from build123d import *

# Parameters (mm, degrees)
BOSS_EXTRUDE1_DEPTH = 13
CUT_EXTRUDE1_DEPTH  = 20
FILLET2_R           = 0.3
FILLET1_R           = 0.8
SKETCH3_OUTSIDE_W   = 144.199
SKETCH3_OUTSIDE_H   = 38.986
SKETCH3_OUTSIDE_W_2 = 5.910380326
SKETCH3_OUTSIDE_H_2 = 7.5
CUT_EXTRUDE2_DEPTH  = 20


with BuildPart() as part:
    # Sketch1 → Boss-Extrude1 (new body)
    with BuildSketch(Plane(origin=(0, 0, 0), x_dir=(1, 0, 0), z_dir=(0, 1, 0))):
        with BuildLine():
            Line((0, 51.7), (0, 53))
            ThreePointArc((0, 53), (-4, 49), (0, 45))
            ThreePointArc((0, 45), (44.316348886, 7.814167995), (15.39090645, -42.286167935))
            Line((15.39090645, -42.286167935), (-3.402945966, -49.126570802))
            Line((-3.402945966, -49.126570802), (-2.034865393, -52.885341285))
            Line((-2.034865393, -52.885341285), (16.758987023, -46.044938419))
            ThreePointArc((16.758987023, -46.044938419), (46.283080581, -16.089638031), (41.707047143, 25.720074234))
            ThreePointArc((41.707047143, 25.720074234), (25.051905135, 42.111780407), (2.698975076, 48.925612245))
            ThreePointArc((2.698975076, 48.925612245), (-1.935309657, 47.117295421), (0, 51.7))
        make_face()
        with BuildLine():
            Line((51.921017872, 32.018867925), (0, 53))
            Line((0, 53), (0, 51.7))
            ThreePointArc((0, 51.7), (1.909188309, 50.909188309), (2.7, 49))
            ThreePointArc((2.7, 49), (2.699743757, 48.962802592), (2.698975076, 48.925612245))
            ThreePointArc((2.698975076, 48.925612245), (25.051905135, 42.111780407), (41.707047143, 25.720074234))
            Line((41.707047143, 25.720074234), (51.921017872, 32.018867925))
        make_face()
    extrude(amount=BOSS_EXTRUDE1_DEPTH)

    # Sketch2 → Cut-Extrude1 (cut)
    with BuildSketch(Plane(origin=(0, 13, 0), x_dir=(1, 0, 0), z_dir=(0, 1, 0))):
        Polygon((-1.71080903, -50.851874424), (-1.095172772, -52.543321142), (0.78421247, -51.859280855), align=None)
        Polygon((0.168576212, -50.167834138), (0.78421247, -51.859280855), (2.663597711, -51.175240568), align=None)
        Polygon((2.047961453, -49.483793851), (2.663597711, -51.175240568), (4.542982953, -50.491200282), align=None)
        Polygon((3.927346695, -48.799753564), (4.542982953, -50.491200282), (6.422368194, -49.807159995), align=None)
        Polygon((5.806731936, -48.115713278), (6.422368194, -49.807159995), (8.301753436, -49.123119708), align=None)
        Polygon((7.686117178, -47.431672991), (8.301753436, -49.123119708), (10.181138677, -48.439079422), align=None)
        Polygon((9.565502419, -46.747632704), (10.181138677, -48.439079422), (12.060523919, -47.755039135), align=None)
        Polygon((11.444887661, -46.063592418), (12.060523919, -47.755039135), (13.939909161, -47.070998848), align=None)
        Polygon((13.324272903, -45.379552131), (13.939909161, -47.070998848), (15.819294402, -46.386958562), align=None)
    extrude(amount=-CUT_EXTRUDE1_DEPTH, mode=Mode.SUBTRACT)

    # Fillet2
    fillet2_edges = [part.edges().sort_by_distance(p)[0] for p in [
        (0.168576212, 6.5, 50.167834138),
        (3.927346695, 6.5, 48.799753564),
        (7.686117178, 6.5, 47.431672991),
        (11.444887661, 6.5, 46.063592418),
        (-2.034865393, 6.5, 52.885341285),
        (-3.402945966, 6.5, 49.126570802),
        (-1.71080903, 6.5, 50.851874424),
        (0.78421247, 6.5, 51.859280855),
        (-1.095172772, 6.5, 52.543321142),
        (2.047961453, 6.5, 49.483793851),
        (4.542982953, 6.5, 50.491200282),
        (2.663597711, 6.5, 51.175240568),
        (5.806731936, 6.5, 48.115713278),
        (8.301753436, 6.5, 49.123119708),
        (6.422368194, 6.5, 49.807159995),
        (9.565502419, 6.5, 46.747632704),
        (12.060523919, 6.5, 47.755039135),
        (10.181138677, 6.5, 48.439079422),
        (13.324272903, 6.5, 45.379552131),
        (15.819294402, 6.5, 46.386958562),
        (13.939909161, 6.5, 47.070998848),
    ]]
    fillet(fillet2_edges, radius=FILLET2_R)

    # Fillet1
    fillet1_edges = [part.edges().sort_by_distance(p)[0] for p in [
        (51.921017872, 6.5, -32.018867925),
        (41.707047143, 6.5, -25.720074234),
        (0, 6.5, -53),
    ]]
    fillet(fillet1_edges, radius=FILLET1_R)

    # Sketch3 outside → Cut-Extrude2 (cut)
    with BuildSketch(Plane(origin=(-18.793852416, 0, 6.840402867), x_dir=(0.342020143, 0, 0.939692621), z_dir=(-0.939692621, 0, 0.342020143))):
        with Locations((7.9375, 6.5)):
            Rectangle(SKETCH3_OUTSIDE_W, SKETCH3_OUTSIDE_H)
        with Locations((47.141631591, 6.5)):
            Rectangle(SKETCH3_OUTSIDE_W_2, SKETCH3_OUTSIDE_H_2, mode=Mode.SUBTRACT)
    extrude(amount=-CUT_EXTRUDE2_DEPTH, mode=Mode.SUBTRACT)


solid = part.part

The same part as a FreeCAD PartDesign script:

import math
import FreeCAD as App
import Part
import Sketcher

V = App.Vector
Q = App.Units.Quantity


def edges_at(feature, points):
    """Names of the edges that pass closest to the given points."""
    edges = feature.Shape.Edges
    near = lambda p: min(range(len(edges)), key=lambda i: edges[i].distToShape(Part.Vertex(*p))[0])
    return sorted({f"Edge{near(p) + 1}" for p in points})


def add_polygon(sketch, points):
    """Adds a closed chain of lines whose ends are joined by coincident constraints."""
    first, n = sketch.GeometryCount, len(points)
    for a, b in zip(points, points[1:] + points[:1]):
        sketch.addGeometry(Part.LineSegment(App.Vector(*a, 0), App.Vector(*b, 0)), False)
    for i in range(n):
        sketch.addConstraint(Sketcher.Constraint("Coincident", first + i, 2, first + (i + 1) % n, 1))

doc = App.newDocument("Part")
body = doc.addObject("PartDesign::Body", "Body")

# Sketch on XZ plane
sketch1 = body.newObject("Sketcher::SketchObject", "Sketch")
sketch1.AttachmentSupport = (doc.getObject("XZ_Plane"), [""])
sketch1.MapMode = "FlatFace"
sketch1.addGeometry([
    Part.ArcOfCircle(Part.Circle(V(0, -49, 0), V(0, 0, 1), 4), math.radians(90), math.radians(270)),  # 0
    Part.ArcOfCircle(Part.Circle(V(0, 0, 0), V(0, 0, 1), 45), math.radians(-90), math.radians(70)),  # 1
    Part.LineSegment(V(15.39, 42.29, 0), V(-3.4, 49.13, 0)),  # 2
    Part.LineSegment(V(-3.4, 49.13, 0), V(-2.03, 52.89, 0)),  # 3
    Part.LineSegment(V(-2.03, 52.89, 0), V(16.76, 46.04, 0)),  # 4
    Part.ArcOfCircle(Part.Circle(V(0, 0, 0), V(0, 0, 1), 49), math.radians(-32), math.radians(70)),  # 5
    Part.LineSegment(V(41.71, -25.72, 0), V(51.92, -32.02, 0)),  # 6
    Part.LineSegment(V(51.92, -32.02, 0), V(0, -53, 0)),  # 7
    Part.ArcOfCircle(Part.Circle(V(0, -49, 0), V(0, 0, 1), 2.7), math.radians(2), math.radians(270)),  # 8
    Part.ArcOfCircle(Part.Circle(V(0, -49, 0), V(0, 0, 1), 2.7), math.radians(-90), math.radians(0)),  # 9
    Part.ArcOfCircle(Part.Circle(V(0, -49, 0), V(0, 0, 1), 2.7), math.radians(0), math.radians(1.58)),  # 10
], False)
sketch1.addConstraint([
    Sketcher.Constraint("Tangent", 0, 1, 1, 1),
    Sketcher.Constraint("Tangent", 1, 2, 2, 1),
    Sketcher.Constraint("Coincident", 2, 2, 3, 1),
    Sketcher.Constraint("Coincident", 3, 2, 4, 1),
    Sketcher.Constraint("Tangent", 4, 2, 5, 2),
    Sketcher.Constraint("Coincident", 5, 1, 6, 1),
    Sketcher.Constraint("Coincident", 6, 2, 7, 1),
    Sketcher.Constraint("Coincident", 7, 2, 0, 2),
    Sketcher.Constraint("Tangent", 8, 2, 9, 1),
    Sketcher.Constraint("Tangent", 9, 2, 10, 1),
    Sketcher.Constraint("Tangent", 10, 2, 8, 1),
    Sketcher.Constraint("Coincident", 1, 3, -1, 1),
    Sketcher.Constraint("Coincident", 5, 3, -1, 1),
    Sketcher.Constraint("Coincident", 8, 3, 0, 3),
    Sketcher.Constraint("PointOnObject", 0, 3, -2),
    Sketcher.Constraint("PointOnObject", 7, 2, -2),
    Sketcher.Constraint("PointOnObject", 8, 2, -2),
    Sketcher.Constraint("Perpendicular", 2, 3),
    Sketcher.Constraint("Perpendicular", 3, 4),
    Sketcher.Constraint("Horizontal", 10, 3, 9, 2),
    Sketcher.Constraint("Radius", 0, Q("4 mm")),
    Sketcher.Constraint("Radius", 1, Q("45 mm")),
    Sketcher.Constraint("Radius", 5, Q("49 mm")),
    Sketcher.Constraint("Radius", 8, Q("2.7 mm")),
    Sketcher.Constraint("Angle", 2, Q("160 deg")),
    Sketcher.Constraint("Distance", 2, Q("20 mm")),
    Sketcher.Constraint("Distance", 6, Q("12 mm")),
    Sketcher.Constraint("Distance", 7, Q("56 mm")),
    Sketcher.Constraint("DistanceX", 5, 1, 6, 2, Q("10.213971 mm")),
    Sketcher.Constraint("DistanceX", -1, 1, 10, 2, Q("2.698975 mm")),
])
pad1 = body.newObject("PartDesign::Pad", "Pad")
pad1.Profile = sketch1
pad1.Length = 13
pad1.Reversed = True

# Sketch on XZ plane
sketch2 = body.newObject("Sketcher::SketchObject", "Sketch001")
sketch2.AttachmentSupport = (doc.getObject("XZ_Plane"), [""])
sketch2.MapMode = "FlatFace"
sketch2.AttachmentOffset = App.Placement(V(0, 0, -13), App.Rotation())
add_polygon(sketch2, [(-1.7, 50.9), (-1.1, 52.5), (0.8, 51.9)])  # lines 0-2
add_polygon(sketch2, [(0.2, 50.2), (0.8, 51.9), (2.7, 51.2)])  # lines 3-5
add_polygon(sketch2, [(2, 49.5), (2.7, 51.2), (4.5, 50.5)])  # lines 6-8
add_polygon(sketch2, [(3.9, 48.8), (4.5, 50.5), (6.4, 49.8)])  # lines 9-11
add_polygon(sketch2, [(5.8, 48.1), (6.4, 49.8), (8.3, 49.1)])  # lines 12-14
add_polygon(sketch2, [(7.7, 47.4), (8.3, 49.1), (10.2, 48.4)])  # lines 15-17
add_polygon(sketch2, [(9.6, 46.7), (10.2, 48.4), (12.1, 47.8)])  # lines 18-20
add_polygon(sketch2, [(11.4, 46.1), (12.1, 47.8), (13.9, 47.1)])  # lines 21-23
add_polygon(sketch2, [(13.3, 45.4), (13.9, 47.1), (15.8, 46.4)])  # lines 24-26
sketch2.addConstraint([
    Sketcher.Constraint("Coincident", 3, 2, 1, 2),
    Sketcher.Constraint("Coincident", 6, 2, 4, 2),
    Sketcher.Constraint("Coincident", 9, 2, 7, 2),
    Sketcher.Constraint("Coincident", 12, 2, 10, 2),
    Sketcher.Constraint("Coincident", 15, 2, 13, 2),
    Sketcher.Constraint("Coincident", 18, 2, 16, 2),
    Sketcher.Constraint("Coincident", 21, 2, 19, 2),
    Sketcher.Constraint("Coincident", 24, 2, 22, 2),
    Sketcher.Constraint("Perpendicular", 0, 1),
    Sketcher.Constraint("Perpendicular", 1, 3),
    Sketcher.Constraint("Perpendicular", 3, 4),
    Sketcher.Constraint("Parallel", 2, 5),
    Sketcher.Constraint("Perpendicular", 4, 6),
    Sketcher.Constraint("Perpendicular", 6, 7),
    Sketcher.Constraint("Parallel", 5, 8),
    Sketcher.Constraint("Perpendicular", 7, 9),
    Sketcher.Constraint("Perpendicular", 9, 10),
    Sketcher.Constraint("Parallel", 8, 11),
    Sketcher.Constraint("Perpendicular", 10, 12),
    Sketcher.Constraint("Perpendicular", 12, 13),
    Sketcher.Constraint("Parallel", 11, 14),
    Sketcher.Constraint("Perpendicular", 13, 15),
    Sketcher.Constraint("Perpendicular", 15, 16),
    Sketcher.Constraint("Parallel", 14, 17),
    Sketcher.Constraint("Perpendicular", 16, 18),
    Sketcher.Constraint("Perpendicular", 18, 19),
    Sketcher.Constraint("Parallel", 17, 20),
    Sketcher.Constraint("Perpendicular", 19, 21),
    Sketcher.Constraint("Perpendicular", 21, 22),
    Sketcher.Constraint("Parallel", 20, 23),
    Sketcher.Constraint("Perpendicular", 22, 24),
    Sketcher.Constraint("Perpendicular", 24, 25),
    Sketcher.Constraint("Parallel", 23, 26),
    Sketcher.Constraint("Equal", 0, 3),
    Sketcher.Constraint("Equal", 3, 6),
    Sketcher.Constraint("Equal", 6, 9),
    Sketcher.Constraint("Equal", 9, 12),
    Sketcher.Constraint("Equal", 12, 15),
    Sketcher.Constraint("Equal", 15, 18),
    Sketcher.Constraint("Equal", 18, 21),
    Sketcher.Constraint("Equal", 21, 24),
    Sketcher.Constraint("Angle", 0, Q("70 deg")),
    Sketcher.Constraint("Distance", 1, Q("2 mm")),
    Sketcher.Constraint("Distance", 0, Q("1.8 mm")),
    Sketcher.Constraint("DistanceY", -1, 1, 22, 2, Q("47.070999 mm")),
    Sketcher.Constraint("DistanceX", 2, 2, -1, 1, Q("1.710809 mm")),
])
pocket1 = body.newObject("PartDesign::Pocket", "Pocket")
pocket1.Profile = sketch2
pocket1.Length = 20
pocket1.Reversed = True
doc.recompute()

fillet = body.newObject("PartDesign::Fillet", "Fillet")
fillet.Base = (pocket1, edges_at(pocket1, [
    (0.169, 6.5, 50.168),
    (3.927, 6.5, 48.8),
    (7.686, 6.5, 47.432),
    (11.445, 6.5, 46.064),
    (-2.035, 6.5, 52.885),
    (-3.403, 6.5, 49.127),
    (-1.711, 6.5, 50.852),
    (0.784, 6.5, 51.859),
    (-1.095, 6.5, 52.543),
    (2.048, 6.5, 49.484),
    (4.543, 6.5, 50.491),
    (2.664, 6.5, 51.175),
    (5.807, 6.5, 48.116),
    (8.302, 6.5, 49.123),
    (6.422, 6.5, 49.807),
    (9.566, 6.5, 46.748),
    (12.061, 6.5, 47.755),
    (10.181, 6.5, 48.439),
    (13.324, 6.5, 45.38),
    (15.819, 6.5, 46.387),
    (13.94, 6.5, 47.071),
]))
fillet.Radius = 0.3
doc.recompute()

fillet2 = body.newObject("PartDesign::Fillet", "Fillet001")
fillet2.Base = (fillet, edges_at(fillet, [(51.921, 6.5, -32.019), (41.707, 6.5, -25.72), (0, 6.5, -53)]))
fillet2.Radius = 0.8

# Sketch on an angled plane
sketch3 = body.newObject("Sketcher::SketchObject", "Sketch002")
sketch3.Placement = App.Placement(V(-18.793852, 0, 6.840403), App.Rotation(V(0.342020143, 0, 0.939692621), V(0, 1, 0), V(-0.939692621, 0, 0.342020143), "ZXY"))
add_polygon(sketch3, [(-64, 26), (-64, -13), (80, -13), (80, 26)])  # lines 0-3
add_polygon(sketch3, [(50, 3), (44, 3), (44, 10), (50, 10)])  # lines 4-7
sketch3.addConstraint([
    Sketcher.Constraint("Vertical", 0),
    Sketcher.Constraint("Horizontal", 1),
    Sketcher.Constraint("Vertical", 2),
    Sketcher.Constraint("Horizontal", 3),
    Sketcher.Constraint("Horizontal", 4),
    Sketcher.Constraint("Vertical", 5),
    Sketcher.Constraint("Horizontal", 6),
    Sketcher.Constraint("Vertical", 7),
    Sketcher.Constraint("DistanceY", 5, 1, 5, 2, Q("7.5 mm")),
    Sketcher.Constraint("DistanceX", 1, 1, 1, 2, Q("144.199 mm")),
    Sketcher.Constraint("DistanceY", 0, 2, 0, 1, Q("38.986 mm")),
    Sketcher.Constraint("DistanceY", -1, 1, 4, 2, Q("2.75 mm")),
    Sketcher.Constraint("DistanceX", 0, 2, -1, 1, Q("64.162 mm")),
    Sketcher.Constraint("DistanceY", 0, 2, -1, 1, Q("12.993 mm")),
    Sketcher.Constraint("DistanceX", 4, 2, 4, 1, Q("5.91038 mm")),
    Sketcher.Constraint("DistanceX", -1, 1, 4, 2, Q("44.186441 mm")),
])
pocket2 = body.newObject("PartDesign::Pocket", "Pocket001")
pocket2.Profile = sketch3
pocket2.Length = 20

doc.recompute()
